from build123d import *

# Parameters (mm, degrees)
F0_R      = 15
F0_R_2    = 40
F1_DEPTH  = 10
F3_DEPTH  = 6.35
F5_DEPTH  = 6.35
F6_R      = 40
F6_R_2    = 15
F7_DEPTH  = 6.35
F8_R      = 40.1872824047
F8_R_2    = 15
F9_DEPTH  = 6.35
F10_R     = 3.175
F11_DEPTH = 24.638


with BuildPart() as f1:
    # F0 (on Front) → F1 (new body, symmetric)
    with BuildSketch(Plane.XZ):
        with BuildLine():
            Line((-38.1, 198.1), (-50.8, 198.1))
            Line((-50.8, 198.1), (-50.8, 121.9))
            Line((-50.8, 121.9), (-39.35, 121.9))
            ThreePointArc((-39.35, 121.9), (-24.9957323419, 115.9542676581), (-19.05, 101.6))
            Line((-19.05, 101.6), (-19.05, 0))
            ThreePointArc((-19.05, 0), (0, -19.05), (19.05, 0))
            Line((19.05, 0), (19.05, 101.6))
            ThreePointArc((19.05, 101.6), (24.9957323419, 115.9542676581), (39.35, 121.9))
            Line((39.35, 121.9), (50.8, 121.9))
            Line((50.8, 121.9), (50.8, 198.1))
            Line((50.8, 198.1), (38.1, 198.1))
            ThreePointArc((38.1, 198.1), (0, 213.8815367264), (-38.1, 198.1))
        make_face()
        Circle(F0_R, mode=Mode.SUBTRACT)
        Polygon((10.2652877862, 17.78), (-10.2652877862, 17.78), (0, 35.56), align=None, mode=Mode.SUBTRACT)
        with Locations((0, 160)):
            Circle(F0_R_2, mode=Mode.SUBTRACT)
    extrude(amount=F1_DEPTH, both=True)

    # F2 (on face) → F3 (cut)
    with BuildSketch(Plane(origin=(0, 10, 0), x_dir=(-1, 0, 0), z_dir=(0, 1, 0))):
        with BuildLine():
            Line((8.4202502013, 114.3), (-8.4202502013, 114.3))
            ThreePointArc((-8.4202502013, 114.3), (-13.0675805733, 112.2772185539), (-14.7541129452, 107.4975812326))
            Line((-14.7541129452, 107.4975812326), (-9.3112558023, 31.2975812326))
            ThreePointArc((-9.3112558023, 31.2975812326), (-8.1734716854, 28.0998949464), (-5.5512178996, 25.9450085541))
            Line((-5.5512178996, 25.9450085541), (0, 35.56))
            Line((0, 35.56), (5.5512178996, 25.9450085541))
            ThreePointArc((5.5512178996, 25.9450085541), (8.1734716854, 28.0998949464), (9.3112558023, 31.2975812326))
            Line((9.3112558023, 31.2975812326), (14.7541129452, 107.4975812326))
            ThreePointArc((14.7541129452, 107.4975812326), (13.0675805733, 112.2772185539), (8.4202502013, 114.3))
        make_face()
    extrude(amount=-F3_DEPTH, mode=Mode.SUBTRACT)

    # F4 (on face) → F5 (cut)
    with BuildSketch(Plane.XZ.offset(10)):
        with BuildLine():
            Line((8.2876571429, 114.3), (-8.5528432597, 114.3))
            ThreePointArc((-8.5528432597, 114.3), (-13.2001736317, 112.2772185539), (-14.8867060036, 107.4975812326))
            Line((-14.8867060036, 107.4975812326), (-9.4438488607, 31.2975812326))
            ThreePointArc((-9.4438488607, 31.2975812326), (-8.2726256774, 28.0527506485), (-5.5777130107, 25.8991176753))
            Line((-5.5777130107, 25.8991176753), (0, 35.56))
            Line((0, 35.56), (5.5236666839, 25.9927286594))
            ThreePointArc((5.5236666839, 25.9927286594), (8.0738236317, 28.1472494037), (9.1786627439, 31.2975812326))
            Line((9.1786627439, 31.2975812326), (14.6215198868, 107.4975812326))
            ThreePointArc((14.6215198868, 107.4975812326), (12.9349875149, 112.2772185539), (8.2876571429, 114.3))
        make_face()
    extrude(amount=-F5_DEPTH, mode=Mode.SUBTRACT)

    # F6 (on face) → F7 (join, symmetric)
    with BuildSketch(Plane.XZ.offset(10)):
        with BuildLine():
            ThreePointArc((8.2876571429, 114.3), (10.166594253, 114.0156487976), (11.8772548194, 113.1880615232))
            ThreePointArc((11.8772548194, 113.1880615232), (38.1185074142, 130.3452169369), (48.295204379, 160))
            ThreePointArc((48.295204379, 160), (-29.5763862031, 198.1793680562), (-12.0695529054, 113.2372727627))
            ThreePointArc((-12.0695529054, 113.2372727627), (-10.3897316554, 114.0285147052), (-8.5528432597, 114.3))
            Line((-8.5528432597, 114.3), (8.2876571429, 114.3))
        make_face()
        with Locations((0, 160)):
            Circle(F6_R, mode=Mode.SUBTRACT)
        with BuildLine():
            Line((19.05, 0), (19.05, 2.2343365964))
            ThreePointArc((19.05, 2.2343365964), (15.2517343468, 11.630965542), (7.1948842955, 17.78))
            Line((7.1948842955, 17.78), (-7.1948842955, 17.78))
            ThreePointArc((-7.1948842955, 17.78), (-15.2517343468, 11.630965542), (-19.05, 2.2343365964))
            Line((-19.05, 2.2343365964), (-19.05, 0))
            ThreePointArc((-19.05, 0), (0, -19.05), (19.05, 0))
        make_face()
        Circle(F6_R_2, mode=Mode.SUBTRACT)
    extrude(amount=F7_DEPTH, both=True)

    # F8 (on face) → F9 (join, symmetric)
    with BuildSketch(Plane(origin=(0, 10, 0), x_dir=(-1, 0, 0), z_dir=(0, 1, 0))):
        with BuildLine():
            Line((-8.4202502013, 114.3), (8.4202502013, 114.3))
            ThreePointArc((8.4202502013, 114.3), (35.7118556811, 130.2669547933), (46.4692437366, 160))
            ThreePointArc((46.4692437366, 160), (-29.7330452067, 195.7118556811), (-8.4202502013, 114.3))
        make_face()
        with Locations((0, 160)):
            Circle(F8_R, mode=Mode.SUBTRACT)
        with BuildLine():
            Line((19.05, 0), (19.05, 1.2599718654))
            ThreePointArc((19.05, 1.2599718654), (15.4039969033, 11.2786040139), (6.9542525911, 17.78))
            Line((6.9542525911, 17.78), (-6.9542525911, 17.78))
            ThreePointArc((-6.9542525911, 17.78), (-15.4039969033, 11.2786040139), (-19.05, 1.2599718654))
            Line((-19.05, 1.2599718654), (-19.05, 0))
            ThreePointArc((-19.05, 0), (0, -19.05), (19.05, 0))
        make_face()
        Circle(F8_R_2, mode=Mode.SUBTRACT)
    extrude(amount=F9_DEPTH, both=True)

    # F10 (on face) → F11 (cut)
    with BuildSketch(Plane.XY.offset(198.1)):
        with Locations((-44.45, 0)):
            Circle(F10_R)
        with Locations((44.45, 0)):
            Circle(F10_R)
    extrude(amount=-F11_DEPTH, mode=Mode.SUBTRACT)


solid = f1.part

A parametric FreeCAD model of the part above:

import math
import FreeCAD as App
import Part
import Sketcher
from FreeCAD import Vector
Q = App.Units.Quantity

doc = App.newDocument("Part")
body = doc.addObject("PartDesign::Body", "Body")

sketch1 = body.newObject("Sketcher::SketchObject", "Sketch")
sketch1.AttachmentSupport = (doc.getObject("XZ_Plane"), [""])
sketch1.MapMode = "FlatFace"
sketch1.addGeometry(Part.LineSegment(Vector(-38.1, 198.1, 0), Vector(-50.8, 198.1, 0)), False)
sketch1.addGeometry(Part.LineSegment(Vector(-50.8, 198.1, 0), Vector(-50.8, 121.9, 0)), False)
sketch1.addGeometry(Part.LineSegment(Vector(-50.8, 121.9, 0), Vector(-39.35, 121.9, 0)), False)
sketch1.addGeometry(Part.ArcOfCircle(Part.Circle(Vector(-39.35, 101.6, 0), Vector(0, 0, 1), 20.3), math.radians(0), math.radians(90)), False)
sketch1.addGeometry(Part.LineSegment(Vector(-19.05, 101.6, 0), Vector(-19.05, 0, 0)), False)
sketch1.addGeometry(Part.ArcOfCircle(Part.Circle(Vector(0, 0, 0), Vector(0, 0, 1), 19.05), math.radians(180), math.radians(360)), False)
sketch1.addGeometry(Part.LineSegment(Vector(19.05, 0, 0), Vector(19.05, 101.6, 0)), False)
sketch1.addGeometry(Part.ArcOfCircle(Part.Circle(Vector(39.35, 101.6, 0), Vector(0, 0, 1), 20.3), math.radians(90), math.radians(180)), False)
sketch1.addGeometry(Part.LineSegment(Vector(39.35, 121.9, 0), Vector(50.8, 121.9, 0)), False)
sketch1.addGeometry(Part.LineSegment(Vector(50.8, 121.9, 0), Vector(50.8, 198.1, 0)), False)
sketch1.addGeometry(Part.LineSegment(Vector(50.8, 198.1, 0), Vector(38.1, 198.1, 0)), False)
sketch1.addGeometry(Part.ArcOfCircle(Part.Circle(Vector(0, 160, 0), Vector(0, 0, 1), 53.881537), math.radians(45), math.radians(135)), False)
sketch1.addGeometry(Part.Circle(Vector(0, 0, 0), Vector(0, 0, 1), 15), False)
sketch1.addGeometry(Part.LineSegment(Vector(0, 35.56, 0), Vector(10.265288, 17.78, 0)), False)
sketch1.addGeometry(Part.LineSegment(Vector(10.265288, 17.78, 0), Vector(-10.265288, 17.78, 0)), False)
sketch1.addGeometry(Part.LineSegment(Vector(-10.265288, 17.78, 0), Vector(0, 35.56, 0)), False)
sketch1.addGeometry(Part.Circle(Vector(0, 160, 0), Vector(0, 0, 1), 40), False)
sketch1.addConstraint(Sketcher.Constraint("Coincident", 0, 2, 1, 1))
sketch1.addConstraint(Sketcher.Constraint("Coincident", 1, 2, 2, 1))
sketch1.addConstraint(Sketcher.Constraint("Tangent", 2, 2, 3, 2))
sketch1.addConstraint(Sketcher.Constraint("Tangent", 3, 1, 4, 1))
sketch1.addConstraint(Sketcher.Constraint("Tangent", 4, 2, 5, 1))
sketch1.addConstraint(Sketcher.Constraint("Tangent", 5, 2, 6, 1))
sketch1.addConstraint(Sketcher.Constraint("Tangent", 6, 2, 7, 2))
sketch1.addConstraint(Sketcher.Constraint("Tangent", 7, 1, 8, 1))
sketch1.addConstraint(Sketcher.Constraint("Coincident", 8, 2, 9, 1))
sketch1.addConstraint(Sketcher.Constraint("Coincident", 9, 2, 10, 1))
sketch1.addConstraint(Sketcher.Constraint("Coincident", 10, 2, 11, 1))
sketch1.addConstraint(Sketcher.Constraint("Coincident", 11, 2, 0, 1))
sketch1.addConstraint(Sketcher.Constraint("Coincident", 13, 2, 14, 1))
sketch1.addConstraint(Sketcher.Constraint("Coincident", 14, 2, 15, 1))
sketch1.addConstraint(Sketcher.Constraint("Coincident", 15, 2, 13, 1))
sketch1.addConstraint(Sketcher.Constraint("Horizontal", 0))
sketch1.addConstraint(Sketcher.Constraint("Vertical", 1))
sketch1.addConstraint(Sketcher.Constraint("Horizontal", 2))
sketch1.addConstraint(Sketcher.Constraint("Vertical", 4))
sketch1.addConstraint(Sketcher.Constraint("Vertical", 6))
sketch1.addConstraint(Sketcher.Constraint("Horizontal", 8))
sketch1.addConstraint(Sketcher.Constraint("Vertical", 9))
sketch1.addConstraint(Sketcher.Constraint("Horizontal", 10))
sketch1.addConstraint(Sketcher.Constraint("Horizontal", 14))
sketch1.addConstraint(Sketcher.Constraint("Coincident", 5, 3, -1, 1))
sketch1.addConstraint(Sketcher.Constraint("Coincident", 12, 3, -1, 1))
sketch1.addConstraint(Sketcher.Constraint("Coincident", 16, 3, 11, 3))
sketch1.addConstraint(Sketcher.Constraint("Equal", 3, 7))
sketch1.addConstraint(Sketcher.Constraint("Symmetric", 1, 2, 8, 2, -2))
sketch1.addConstraint(Sketcher.Constraint("Symmetric", 10, 2, 11, 2, -2))
sketch1.addConstraint(Sketcher.Constraint("PointOnObject", 15, 2, -2))
sketch1.addConstraint(Sketcher.Constraint("Equal", 13, 15))
sketch1.addConstraint(Sketcher.Constraint("DistanceY", 1, 2, 1, 1, Q("3 in")))
sketch1.addConstraint(Sketcher.Constraint("DistanceY", 4, 2, 4, 1, Q("4 in")))
sketch1.addConstraint(Sketcher.Constraint("Radius", 5, Q("0.75 in")))
sketch1.addConstraint(Sketcher.Constraint("DistanceX", 0, 2, 0, 1, Q("0.5 in")))
sketch1.addConstraint(Sketcher.Constraint("DistanceX", 0, 2, -1, 1, Q("2 in")))
sketch1.addConstraint(Sketcher.Constraint("Angle", 13, Q("-60 deg")))
sketch1.addConstraint(Sketcher.Constraint("DistanceY", -1, 1, 13, 2, Q("0.7 in")))
sketch1.addConstraint(Sketcher.Constraint("DistanceY", -1, 1, 15, 2, Q("1.4 in")))
sketch1.addConstraint(Sketcher.Constraint("DistanceY", 11, 3, 0, 2, Q("1.5 in")))
sketch1.addConstraint(Sketcher.Constraint("Diameter", 12, 30.0))
sketch1.addConstraint(Sketcher.Constraint("Diameter", 16, 80.0))
sketch1.addConstraint(Sketcher.Constraint("Radius", 3, 20.3))
pad1 = body.newObject("PartDesign::Pad", "Pad")
pad1.Profile = sketch1
pad1.Length = 20
pad1.Midplane = True

sketch2 = body.newObject("Sketcher::SketchObject", "Sketch001")
sketch2.AttachmentSupport = (doc.getObject("XZ_Plane"), [""])
sketch2.MapMode = "FlatFace"
sketch2.AttachmentOffset = App.Placement(Vector(0, 0, -10), App.Rotation())
sketch2.addGeometry(Part.LineSegment(Vector(-8.42025, 114.3, 0), Vector(8.42025, 114.3, 0)), False)
sketch2.addGeometry(Part.ArcOfCircle(Part.Circle(Vector(8.42025, 107.95, 0), Vector(0, 0, 1), 6.35), math.radians(-4.085617), math.radians(90)), False)
sketch2.addGeometry(Part.LineSegment(Vector(14.754113, 107.497581, 0), Vector(9.311256, 31.297581, 0)), False)
sketch2.addGeometry(Part.ArcOfCircle(Part.Circle(Vector(2.977393, 31.75, 0), Vector(0, 0, 1), 6.35), math.radians(-66.088396), math.radians(-4.085617)), False)
sketch2.addGeometry(Part.LineSegment(Vector(5.551218, 25.945009, 0), Vector(0, 35.56, 0)), False)
sketch2.addGeometry(Part.LineSegment(Vector(0, 35.56, 0), Vector(-5.551218, 25.945009, 0)), False)
sketch2.addGeometry(Part.ArcOfCircle(Part.Circle(Vector(-2.977393, 31.75, 0), Vector(0, 0, 1), 6.35), math.radians(-175.914383), math.radians(-113.911604)), False)
sketch2.addGeometry(Part.LineSegment(Vector(-9.311256, 31.297581, 0), Vector(-14.754113, 107.497581, 0)), False)
sketch2.addGeometry(Part.ArcOfCircle(Part.Circle(Vector(-8.42025, 107.95, 0), Vector(0, 0, 1), 6.35), math.radians(90), math.radians(184.085617)), False)
sketch2.addConstraint(Sketcher.Constraint("Tangent", 0, 2, 1, 2))
sketch2.addConstraint(Sketcher.Constraint("Tangent", 1, 1, 2, 1))
sketch2.addConstraint(Sketcher.Constraint("Tangent", 2, 2, 3, 2))
sketch2.addConstraint(Sketcher.Constraint("Coincident", 3, 1, 4, 1))
sketch2.addConstraint(Sketcher.Constraint("Coincident", 4, 2, 5, 1))
sketch2.addConstraint(Sketcher.Constraint("Coincident", 5, 2, 6, 2))
sketch2.addConstraint(Sketcher.Constraint("Tangent", 6, 1, 7, 1))
sketch2.addConstraint(Sketcher.Constraint("Tangent", 7, 2, 8, 2))
sketch2.addConstraint(Sketcher.Constraint("Tangent", 8, 1, 0, 1))
sketch2.addConstraint(Sketcher.Constraint("Horizontal", 0))
sketch2.addConstraint(Sketcher.Constraint("Equal", 1, 3))
sketch2.addConstraint(Sketcher.Constraint("Equal", 3, 6))
sketch2.addConstraint(Sketcher.Constraint("Equal", 6, 8))
sketch2.addConstraint(Sketcher.Constraint("Symmetric", 3, 3, 6, 3, -2))
sketch2.addConstraint(Sketcher.Constraint("PointOnObject", 4, 2, -2))
sketch2.addConstraint(Sketcher.Constraint("Horizontal", 3, 1, 5, 2))
sketch2.addConstraint(Sketcher.Constraint("Horizontal", 2, 2, 6, 1))
sketch2.addConstraint(Sketcher.Constraint("Radius", 1, Q("0.25 in")))
sketch2.addConstraint(Sketcher.Constraint("Angle", 4, Q("120 deg")))
sketch2.addConstraint(Sketcher.Constraint("DistanceY", 3, 3, 1, 3, Q("3 in")))
sketch2.addConstraint(Sketcher.Constraint("DistanceY", -1, 1, 0, 2, Q("4.5 in")))
sketch2.addConstraint(Sketcher.Constraint("DistanceY", -1, 1, 4, 2, Q("1.4 in")))
sketch2.addConstraint(Sketcher.Constraint("DistanceX", 0, 1, 0, 2, 16.8405))
sketch2.addConstraint(Sketcher.Constraint("Distance", 2, 76.39414))
pocket1 = body.newObject("PartDesign::Pocket", "Pocket")
pocket1.Profile = sketch2
pocket1.Length = Q("0.25 in")
pocket1.Reversed = True

sketch3 = body.newObject("Sketcher::SketchObject", "Sketch002")
sketch3.AttachmentSupport = (doc.getObject("XZ_Plane"), [""])
sketch3.MapMode = "FlatFace"
sketch3.AttachmentOffset = App.Placement(Vector(0, 0, 10), App.Rotation())
sketch3.addGeometry(Part.LineSegment(Vector(8.287657, 114.3, 0), Vector(-8.552843, 114.3, 0)), False)
sketch3.addGeometry(Part.ArcOfCircle(Part.Circle(Vector(-8.552843, 107.95, 0), Vector(0, 0, 1), 6.35), math.radians(90), math.radians(184.085617)), False)
sketch3.addGeometry(Part.LineSegment(Vector(-14.886706, 107.497581, 0), Vector(-9.443849, 31.297581, 0)), False)
sketch3.addGeometry(Part.ArcOfCircle(Part.Circle(Vector(-3.109986, 31.75, 0), Vector(0, 0, 1), 6.35), math.radians(-175.914383), math.radians(-112.86856)), False)
sketch3.addGeometry(Part.LineSegment(Vector(-5.577713, 25.899118, 0), Vector(0, 35.56, 0)), False)
sketch3.addGeometry(Part.LineSegment(Vector(0, 35.56, 0), Vector(5.523667, 25.992729, 0)), False)
sketch3.addGeometry(Part.ArcOfCircle(Part.Circle(Vector(2.8448, 31.75, 0), Vector(0, 0, 1), 6.35), math.radians(-65.047373), math.radians(-4.085617)), False)
sketch3.addGeometry(Part.LineSegment(Vector(9.178663, 31.297581, 0), Vector(14.62152, 107.497581, 0)), False)
sketch3.addGeometry(Part.ArcOfCircle(Part.Circle(Vector(8.287657, 107.95, 0), Vector(0, 0, 1), 6.35), math.radians(-4.085617), math.radians(90)), False)
sketch3.addConstraint(Sketcher.Constraint("Tangent", 0, 2, 1, 1))
sketch3.addConstraint(Sketcher.Constraint("Tangent", 1, 2, 2, 1))
sketch3.addConstraint(Sketcher.Constraint("Tangent", 2, 2, 3, 1))
sketch3.addConstraint(Sketcher.Constraint("Coincident", 3, 2, 4, 1))
sketch3.addConstraint(Sketcher.Constraint("Coincident", 4, 2, 5, 1))
sketch3.addConstraint(Sketcher.Constraint("Coincident", 5, 2, 6, 1))
sketch3.addConstraint(Sketcher.Constraint("Tangent", 6, 2, 7, 1))
sketch3.addConstraint(Sketcher.Constraint("Tangent", 7, 2, 8, 1))
sketch3.addConstraint(Sketcher.Constraint("Tangent", 8, 2, 0, 1))
sketch3.addConstraint(Sketcher.Constraint("Horizontal", 0))
sketch3.addConstraint(Sketcher.Constraint("Equal", 1, 3))
sketch3.addConstraint(Sketcher.Constraint("Equal", 3, 6))
sketch3.addConstraint(Sketcher.Constraint("Equal", 6, 8))
sketch3.addConstraint(Sketcher.Constraint("PointOnObject", 4, 2, -2))
sketch3.addConstraint(Sketcher.Constraint("Horizontal", 3, 3, 6, 3))
sketch3.addConstraint(Sketcher.Constraint("Horizontal", 2, 2, 6, 2))
sketch3.addConstraint(Sketcher.Constraint("Radius", 1, Q("0.25 in")))
sketch3.addConstraint(Sketcher.Constraint("Angle", 4, Q("60 deg")))
sketch3.addConstraint(Sketcher.Constraint("Angle", 5, Q("-60 deg")))
sketch3.addConstraint(Sketcher.Constraint("DistanceY", 3, 3, 1, 3, Q("3 in")))
sketch3.addConstraint(Sketcher.Constraint("DistanceY", -1, 1, 0, 2, Q("4.5 in")))
sketch3.addConstraint(Sketcher.Constraint("DistanceY", -1, 1, 4, 2, Q("1.4 in")))
sketch3.addConstraint(Sketcher.Constraint("DistanceX", -1, 1, 6, 3, Q("0.112 in")))
sketch3.addConstraint(Sketcher.Constraint("DistanceX", 0, 2, 0, 1, 16.8405))
sketch3.addConstraint(Sketcher.Constraint("Distance", 2, 76.39414))
pocket2 = body.newObject("PartDesign::Pocket", "Pocket001")
pocket2.Profile = sketch3
pocket2.Length = Q("0.25 in")

sketch4 = body.newObject("Sketcher::SketchObject", "Sketch003")
sketch4.AttachmentSupport = (doc.getObject("XZ_Plane"), [""])
sketch4.MapMode = "FlatFace"
sketch4.AttachmentOffset = App.Placement(Vector(0, 0, 10), App.Rotation())
sketch4.addGeometry(Part.ArcOfCircle(Part.Circle(Vector(8.287657, 107.95, 0), Vector(0, 0, 1), 6.35), math.radians(55.577501), math.radians(90)), False)
sketch4.addGeometry(Part.ArcOfCircle(Part.Circle(Vector(0, 160, 0), Vector(0, 0, 1), 48.295204), math.radians(-75.763181), math.radians(255.527693)), False)
sketch4.addGeometry(Part.ArcOfCircle(Part.Circle(Vector(-8.552843, 107.95, 0), Vector(0, 0, 1), 6.35), math.radians(90), math.radians(123.628965)), False)
sketch4.addGeometry(Part.LineSegment(Vector(-8.552843, 114.3, 0), Vector(8.287657, 114.3, 0)), False)
sketch4.addGeometry(Part.Circle(Vector(0, 160, 0), Vector(0, 0, 1), 40), False)
sketch4.addGeometry(Part.LineSegment(Vector(19.05, 0, 0), Vector(19.05, 2.234337, 0)), False)
sketch4.addGeometry(Part.ArcOfCircle(Part.Circle(Vector(0, 0, 0), Vector(0, 0, 1), 19.180583), math.radians(6.689545), math.radians(67.968708)), False)
sketch4.addGeometry(Part.LineSegment(Vector(7.194884, 17.78, 0), Vector(-7.194884, 17.78, 0)), False)
sketch4.addGeometry(Part.ArcOfCircle(Part.Circle(Vector(0, 0, 0), Vector(0, 0, 1), 19.180583), math.radians(112.031292), math.radians(173.310455)), False)
sketch4.addGeometry(Part.LineSegment(Vector(-19.05, 2.234337, 0), Vector(-19.05, 0, 0)), False)
sketch4.addGeometry(Part.ArcOfCircle(Part.Circle(Vector(0, 0, 0), Vector(0, 0, 1), 19.05), math.radians(180), math.radians(360)), False)
sketch4.addGeometry(Part.Circle(Vector(0, 0, 0), Vector(0, 0, 1), 15), False)
sketch4.addConstraint(Sketcher.Constraint("Coincident", 0, 1, 1, 1))
sketch4.addConstraint(Sketcher.Constraint("Coincident", 1, 2, 2, 2))
sketch4.addConstraint(Sketcher.Constraint("Tangent", 2, 1, 3, 1))
sketch4.addConstraint(Sketcher.Constraint("Tangent", 3, 2, 0, 2))
sketch4.addConstraint(Sketcher.Constraint("Coincident", 5, 2, 6, 1))
sketch4.addConstraint(Sketcher.Constraint("Coincident", 6, 2, 7, 1))
sketch4.addConstraint(Sketcher.Constraint("Coincident", 7, 2, 8, 1))
sketch4.addConstraint(Sketcher.Constraint("Coincident", 8, 2, 9, 1))
sketch4.addConstraint(Sketcher.Constraint("Tangent", 9, 2, 10, 1))
sketch4.addConstraint(Sketcher.Constraint("Tangent", 10, 2, 5, 1))
sketch4.addConstraint(Sketcher.Constraint("Horizontal", 3))
sketch4.addConstraint(Sketcher.Constraint("Vertical", 5))
sketch4.addConstraint(Sketcher.Constraint("Horizontal", 7))
sketch4.addConstraint(Sketcher.Constraint("Vertical", 9))
sketch4.addConstraint(Sketcher.Constraint("Coincident", 6, 3, -1, 1))
sketch4.addConstraint(Sketcher.Constraint("Coincident", 8, 3, -1, 1))
sketch4.addConstraint(Sketcher.Constraint("Coincident", 10, 3, -1, 1))
sketch4.addConstraint(Sketcher.Constraint("Coincident", 11, 3, -1, 1))
sketch4.addConstraint(Sketcher.Constraint("Coincident", 4, 3, 1, 3))
sketch4.addConstraint(Sketcher.Constraint("Equal", 0, 2))
sketch4.addConstraint(Sketcher.Constraint("Equal", 6, 8))
sketch4.addConstraint(Sketcher.Constraint("PointOnObject", 1, 3, -2))
sketch4.addConstraint(Sketcher.Constraint("Radius", 0, Q("0.25 in")))
sketch4.addConstraint(Sketcher.Constraint("Radius", 10, Q("0.75 in")))
sketch4.addConstraint(Sketcher.Constraint("DistanceY", -1, 1, 2, 1, Q("4.5 in")))
sketch4.addConstraint(Sketcher.Constraint("DistanceY", -1, 1, 6, 2, Q("0.7 in")))
sketch4.addConstraint(Sketcher.Constraint("Diameter", 4, 80.0))
sketch4.addConstraint(Sketcher.Constraint("Diameter", 11, 30.0))
sketch4.addConstraint(Sketcher.Constraint("DistanceX", 3, 1, 3, 2, 16.8405))
sketch4.addConstraint(Sketcher.Constraint("Radius", 1, 48.295204))
sketch4.addConstraint(Sketcher.Constraint("Radius", 6, 19.180583))
sketch4.addConstraint(Sketcher.Constraint("DistanceY", -1, 1, 1, 3, 160.0))
sketch4.addConstraint(Sketcher.Constraint("DistanceX", 2, 3, 0, 1, 20.430098))
pad2 = body.newObject("PartDesign::Pad", "Pad001")
pad2.Profile = sketch4
pad2.Length = Q("0.5 in")
pad2.Midplane = True

sketch5 = body.newObject("Sketcher::SketchObject", "Sketch004")
sketch5.AttachmentSupport = (doc.getObject("XZ_Plane"), [""])
sketch5.MapMode = "FlatFace"
sketch5.AttachmentOffset = App.Placement(Vector(0, 0, -10), App.Rotation())
sketch5.addGeometry(Part.LineSegment(Vector(8.42025, 114.3, 0), Vector(-8.42025, 114.3, 0)), False)
sketch5.addGeometry(Part.ArcOfCircle(Part.Circle(Vector(0, 160, 0), Vector(0, 0, 1), 46.469244), math.radians(-79.560307), math.radians(259.560307)), False)
sketch5.addGeometry(Part.Circle(Vector(0, 160, 0), Vector(0, 0, 1), 40.187282), False)
sketch5.addGeometry(Part.LineSegment(Vector(-19.05, 0, 0), Vector(-19.05, 1.259972, 0)), False)
sketch5.addGeometry(Part.ArcOfCircle(Part.Circle(Vector(0, 0, 0), Vector(0, 0, 1), 19.091622), math.radians(111.36185), math.radians(176.215954)), False)
sketch5.addGeometry(Part.LineSegment(Vector(-6.954253, 17.78, 0), Vector(6.954253, 17.78, 0)), False)
sketch5.addGeometry(Part.ArcOfCircle(Part.Circle(Vector(0, 0, 0), Vector(0, 0, 1), 19.091622), math.radians(3.784046), math.radians(68.63815)), False)
sketch5.addGeometry(Part.LineSegment(Vector(19.05, 1.259972, 0), Vector(19.05, 0, 0)), False)
sketch5.addGeometry(Part.ArcOfCircle(Part.Circle(Vector(0, 0, 0), Vector(0, 0, 1), 19.05), math.radians(180), math.radians(360)), False)
sketch5.addGeometry(Part.Circle(Vector(0, 0, 0), Vector(0, 0, 1), 15), False)
sketch5.addConstraint(Sketcher.Constraint("Coincident", 0, 1, 1, 1))
sketch5.addConstraint(Sketcher.Constraint("Coincident", 1, 2, 0, 2))
sketch5.addConstraint(Sketcher.Constraint("Coincident", 3, 2, 4, 2))
sketch5.addConstraint(Sketcher.Constraint("Coincident", 4, 1, 5, 1))
sketch5.addConstraint(Sketcher.Constraint("Coincident", 5, 2, 6, 2))
sketch5.addConstraint(Sketcher.Constraint("Coincident", 6, 1, 7, 1))
sketch5.addConstraint(Sketcher.Constraint("Tangent", 7, 2, 8, 2))
sketch5.addConstraint(Sketcher.Constraint("Tangent", 8, 1, 3, 1))
sketch5.addConstraint(Sketcher.Constraint("Horizontal", 0))
sketch5.addConstraint(Sketcher.Constraint("Vertical", 3))
sketch5.addConstraint(Sketcher.Constraint("Horizontal", 5))
sketch5.addConstraint(Sketcher.Constraint("Vertical", 7))
sketch5.addConstraint(Sketcher.Constraint("Coincident", 4, 3, -1, 1))
sketch5.addConstraint(Sketcher.Constraint("Coincident", 6, 3, -1, 1))
sketch5.addConstraint(Sketcher.Constraint("Coincident", 8, 3, -1, 1))
sketch5.addConstraint(Sketcher.Constraint("Coincident", 9, 3, -1, 1))
sketch5.addConstraint(Sketcher.Constraint("Coincident", 2, 3, 1, 3))
sketch5.addConstraint(Sketcher.Constraint("Equal", 4, 6))
sketch5.addConstraint(Sketcher.Constraint("PointOnObject", 1, 3, -2))
sketch5.addConstraint(Sketcher.Constraint("Radius", 8, Q("0.75 in")))
sketch5.addConstraint(Sketcher.Constraint("DistanceY", -1, 1, 0, 1, Q("4.5 in")))
sketch5.addConstraint(Sketcher.Constraint("DistanceY", -1, 1, 4, 1, Q("0.7 in")))
sketch5.addConstraint(Sketcher.Constraint("Diameter", 9, 30.0))
sketch5.addConstraint(Sketcher.Constraint("Radius", 4, 19.091622))
sketch5.addConstraint(Sketcher.Constraint("Diameter", 2, 80.374565))
sketch5.addConstraint(Sketcher.Constraint("DistanceX", 0, 2, 0, 1, 16.8405))
sketch5.addConstraint(Sketcher.Constraint("Radius", 1, 46.469244))
pad3 = body.newObject("PartDesign::Pad", "Pad002")
pad3.Profile = sketch5
pad3.Length = Q("0.5 in")
pad3.Midplane = True

sketch6 = body.newObject("Sketcher::SketchObject", "Sketch005")
sketch6.AttachmentSupport = (doc.getObject("XY_Plane"), [""])
sketch6.MapMode = "FlatFace"
sketch6.AttachmentOffset = App.Placement(Vector(0, 0, 198.1), App.Rotation())
sketch6.addGeometry(Part.Circle(Vector(-44.45, 0, 0), Vector(0, 0, 1), 3.175), False)
sketch6.addGeometry(Part.Circle(Vector(44.45, 0, 0), Vector(0, 0, 1), 3.175), False)
sketch6.addConstraint(Sketcher.Constraint("Equal", 0, 1))
sketch6.addConstraint(Sketcher.Constraint("Symmetric", 0, 3, 1, 3, -1, 1))
sketch6.addConstraint(Sketcher.Constraint("PointOnObject", 0, 3, -1))
sketch6.addConstraint(Sketcher.Constraint("Diameter", 0, Q("0.25 in")))
sketch6.addConstraint(Sketcher.Constraint("DistanceX", 0, 3, 1, 3, Q("3.5 in")))
pocket3 = body.newObject("PartDesign::Pocket", "Pocket002")
pocket3.Profile = sketch6
pocket3.Length = Q("0.97 in")

doc.recompute()
